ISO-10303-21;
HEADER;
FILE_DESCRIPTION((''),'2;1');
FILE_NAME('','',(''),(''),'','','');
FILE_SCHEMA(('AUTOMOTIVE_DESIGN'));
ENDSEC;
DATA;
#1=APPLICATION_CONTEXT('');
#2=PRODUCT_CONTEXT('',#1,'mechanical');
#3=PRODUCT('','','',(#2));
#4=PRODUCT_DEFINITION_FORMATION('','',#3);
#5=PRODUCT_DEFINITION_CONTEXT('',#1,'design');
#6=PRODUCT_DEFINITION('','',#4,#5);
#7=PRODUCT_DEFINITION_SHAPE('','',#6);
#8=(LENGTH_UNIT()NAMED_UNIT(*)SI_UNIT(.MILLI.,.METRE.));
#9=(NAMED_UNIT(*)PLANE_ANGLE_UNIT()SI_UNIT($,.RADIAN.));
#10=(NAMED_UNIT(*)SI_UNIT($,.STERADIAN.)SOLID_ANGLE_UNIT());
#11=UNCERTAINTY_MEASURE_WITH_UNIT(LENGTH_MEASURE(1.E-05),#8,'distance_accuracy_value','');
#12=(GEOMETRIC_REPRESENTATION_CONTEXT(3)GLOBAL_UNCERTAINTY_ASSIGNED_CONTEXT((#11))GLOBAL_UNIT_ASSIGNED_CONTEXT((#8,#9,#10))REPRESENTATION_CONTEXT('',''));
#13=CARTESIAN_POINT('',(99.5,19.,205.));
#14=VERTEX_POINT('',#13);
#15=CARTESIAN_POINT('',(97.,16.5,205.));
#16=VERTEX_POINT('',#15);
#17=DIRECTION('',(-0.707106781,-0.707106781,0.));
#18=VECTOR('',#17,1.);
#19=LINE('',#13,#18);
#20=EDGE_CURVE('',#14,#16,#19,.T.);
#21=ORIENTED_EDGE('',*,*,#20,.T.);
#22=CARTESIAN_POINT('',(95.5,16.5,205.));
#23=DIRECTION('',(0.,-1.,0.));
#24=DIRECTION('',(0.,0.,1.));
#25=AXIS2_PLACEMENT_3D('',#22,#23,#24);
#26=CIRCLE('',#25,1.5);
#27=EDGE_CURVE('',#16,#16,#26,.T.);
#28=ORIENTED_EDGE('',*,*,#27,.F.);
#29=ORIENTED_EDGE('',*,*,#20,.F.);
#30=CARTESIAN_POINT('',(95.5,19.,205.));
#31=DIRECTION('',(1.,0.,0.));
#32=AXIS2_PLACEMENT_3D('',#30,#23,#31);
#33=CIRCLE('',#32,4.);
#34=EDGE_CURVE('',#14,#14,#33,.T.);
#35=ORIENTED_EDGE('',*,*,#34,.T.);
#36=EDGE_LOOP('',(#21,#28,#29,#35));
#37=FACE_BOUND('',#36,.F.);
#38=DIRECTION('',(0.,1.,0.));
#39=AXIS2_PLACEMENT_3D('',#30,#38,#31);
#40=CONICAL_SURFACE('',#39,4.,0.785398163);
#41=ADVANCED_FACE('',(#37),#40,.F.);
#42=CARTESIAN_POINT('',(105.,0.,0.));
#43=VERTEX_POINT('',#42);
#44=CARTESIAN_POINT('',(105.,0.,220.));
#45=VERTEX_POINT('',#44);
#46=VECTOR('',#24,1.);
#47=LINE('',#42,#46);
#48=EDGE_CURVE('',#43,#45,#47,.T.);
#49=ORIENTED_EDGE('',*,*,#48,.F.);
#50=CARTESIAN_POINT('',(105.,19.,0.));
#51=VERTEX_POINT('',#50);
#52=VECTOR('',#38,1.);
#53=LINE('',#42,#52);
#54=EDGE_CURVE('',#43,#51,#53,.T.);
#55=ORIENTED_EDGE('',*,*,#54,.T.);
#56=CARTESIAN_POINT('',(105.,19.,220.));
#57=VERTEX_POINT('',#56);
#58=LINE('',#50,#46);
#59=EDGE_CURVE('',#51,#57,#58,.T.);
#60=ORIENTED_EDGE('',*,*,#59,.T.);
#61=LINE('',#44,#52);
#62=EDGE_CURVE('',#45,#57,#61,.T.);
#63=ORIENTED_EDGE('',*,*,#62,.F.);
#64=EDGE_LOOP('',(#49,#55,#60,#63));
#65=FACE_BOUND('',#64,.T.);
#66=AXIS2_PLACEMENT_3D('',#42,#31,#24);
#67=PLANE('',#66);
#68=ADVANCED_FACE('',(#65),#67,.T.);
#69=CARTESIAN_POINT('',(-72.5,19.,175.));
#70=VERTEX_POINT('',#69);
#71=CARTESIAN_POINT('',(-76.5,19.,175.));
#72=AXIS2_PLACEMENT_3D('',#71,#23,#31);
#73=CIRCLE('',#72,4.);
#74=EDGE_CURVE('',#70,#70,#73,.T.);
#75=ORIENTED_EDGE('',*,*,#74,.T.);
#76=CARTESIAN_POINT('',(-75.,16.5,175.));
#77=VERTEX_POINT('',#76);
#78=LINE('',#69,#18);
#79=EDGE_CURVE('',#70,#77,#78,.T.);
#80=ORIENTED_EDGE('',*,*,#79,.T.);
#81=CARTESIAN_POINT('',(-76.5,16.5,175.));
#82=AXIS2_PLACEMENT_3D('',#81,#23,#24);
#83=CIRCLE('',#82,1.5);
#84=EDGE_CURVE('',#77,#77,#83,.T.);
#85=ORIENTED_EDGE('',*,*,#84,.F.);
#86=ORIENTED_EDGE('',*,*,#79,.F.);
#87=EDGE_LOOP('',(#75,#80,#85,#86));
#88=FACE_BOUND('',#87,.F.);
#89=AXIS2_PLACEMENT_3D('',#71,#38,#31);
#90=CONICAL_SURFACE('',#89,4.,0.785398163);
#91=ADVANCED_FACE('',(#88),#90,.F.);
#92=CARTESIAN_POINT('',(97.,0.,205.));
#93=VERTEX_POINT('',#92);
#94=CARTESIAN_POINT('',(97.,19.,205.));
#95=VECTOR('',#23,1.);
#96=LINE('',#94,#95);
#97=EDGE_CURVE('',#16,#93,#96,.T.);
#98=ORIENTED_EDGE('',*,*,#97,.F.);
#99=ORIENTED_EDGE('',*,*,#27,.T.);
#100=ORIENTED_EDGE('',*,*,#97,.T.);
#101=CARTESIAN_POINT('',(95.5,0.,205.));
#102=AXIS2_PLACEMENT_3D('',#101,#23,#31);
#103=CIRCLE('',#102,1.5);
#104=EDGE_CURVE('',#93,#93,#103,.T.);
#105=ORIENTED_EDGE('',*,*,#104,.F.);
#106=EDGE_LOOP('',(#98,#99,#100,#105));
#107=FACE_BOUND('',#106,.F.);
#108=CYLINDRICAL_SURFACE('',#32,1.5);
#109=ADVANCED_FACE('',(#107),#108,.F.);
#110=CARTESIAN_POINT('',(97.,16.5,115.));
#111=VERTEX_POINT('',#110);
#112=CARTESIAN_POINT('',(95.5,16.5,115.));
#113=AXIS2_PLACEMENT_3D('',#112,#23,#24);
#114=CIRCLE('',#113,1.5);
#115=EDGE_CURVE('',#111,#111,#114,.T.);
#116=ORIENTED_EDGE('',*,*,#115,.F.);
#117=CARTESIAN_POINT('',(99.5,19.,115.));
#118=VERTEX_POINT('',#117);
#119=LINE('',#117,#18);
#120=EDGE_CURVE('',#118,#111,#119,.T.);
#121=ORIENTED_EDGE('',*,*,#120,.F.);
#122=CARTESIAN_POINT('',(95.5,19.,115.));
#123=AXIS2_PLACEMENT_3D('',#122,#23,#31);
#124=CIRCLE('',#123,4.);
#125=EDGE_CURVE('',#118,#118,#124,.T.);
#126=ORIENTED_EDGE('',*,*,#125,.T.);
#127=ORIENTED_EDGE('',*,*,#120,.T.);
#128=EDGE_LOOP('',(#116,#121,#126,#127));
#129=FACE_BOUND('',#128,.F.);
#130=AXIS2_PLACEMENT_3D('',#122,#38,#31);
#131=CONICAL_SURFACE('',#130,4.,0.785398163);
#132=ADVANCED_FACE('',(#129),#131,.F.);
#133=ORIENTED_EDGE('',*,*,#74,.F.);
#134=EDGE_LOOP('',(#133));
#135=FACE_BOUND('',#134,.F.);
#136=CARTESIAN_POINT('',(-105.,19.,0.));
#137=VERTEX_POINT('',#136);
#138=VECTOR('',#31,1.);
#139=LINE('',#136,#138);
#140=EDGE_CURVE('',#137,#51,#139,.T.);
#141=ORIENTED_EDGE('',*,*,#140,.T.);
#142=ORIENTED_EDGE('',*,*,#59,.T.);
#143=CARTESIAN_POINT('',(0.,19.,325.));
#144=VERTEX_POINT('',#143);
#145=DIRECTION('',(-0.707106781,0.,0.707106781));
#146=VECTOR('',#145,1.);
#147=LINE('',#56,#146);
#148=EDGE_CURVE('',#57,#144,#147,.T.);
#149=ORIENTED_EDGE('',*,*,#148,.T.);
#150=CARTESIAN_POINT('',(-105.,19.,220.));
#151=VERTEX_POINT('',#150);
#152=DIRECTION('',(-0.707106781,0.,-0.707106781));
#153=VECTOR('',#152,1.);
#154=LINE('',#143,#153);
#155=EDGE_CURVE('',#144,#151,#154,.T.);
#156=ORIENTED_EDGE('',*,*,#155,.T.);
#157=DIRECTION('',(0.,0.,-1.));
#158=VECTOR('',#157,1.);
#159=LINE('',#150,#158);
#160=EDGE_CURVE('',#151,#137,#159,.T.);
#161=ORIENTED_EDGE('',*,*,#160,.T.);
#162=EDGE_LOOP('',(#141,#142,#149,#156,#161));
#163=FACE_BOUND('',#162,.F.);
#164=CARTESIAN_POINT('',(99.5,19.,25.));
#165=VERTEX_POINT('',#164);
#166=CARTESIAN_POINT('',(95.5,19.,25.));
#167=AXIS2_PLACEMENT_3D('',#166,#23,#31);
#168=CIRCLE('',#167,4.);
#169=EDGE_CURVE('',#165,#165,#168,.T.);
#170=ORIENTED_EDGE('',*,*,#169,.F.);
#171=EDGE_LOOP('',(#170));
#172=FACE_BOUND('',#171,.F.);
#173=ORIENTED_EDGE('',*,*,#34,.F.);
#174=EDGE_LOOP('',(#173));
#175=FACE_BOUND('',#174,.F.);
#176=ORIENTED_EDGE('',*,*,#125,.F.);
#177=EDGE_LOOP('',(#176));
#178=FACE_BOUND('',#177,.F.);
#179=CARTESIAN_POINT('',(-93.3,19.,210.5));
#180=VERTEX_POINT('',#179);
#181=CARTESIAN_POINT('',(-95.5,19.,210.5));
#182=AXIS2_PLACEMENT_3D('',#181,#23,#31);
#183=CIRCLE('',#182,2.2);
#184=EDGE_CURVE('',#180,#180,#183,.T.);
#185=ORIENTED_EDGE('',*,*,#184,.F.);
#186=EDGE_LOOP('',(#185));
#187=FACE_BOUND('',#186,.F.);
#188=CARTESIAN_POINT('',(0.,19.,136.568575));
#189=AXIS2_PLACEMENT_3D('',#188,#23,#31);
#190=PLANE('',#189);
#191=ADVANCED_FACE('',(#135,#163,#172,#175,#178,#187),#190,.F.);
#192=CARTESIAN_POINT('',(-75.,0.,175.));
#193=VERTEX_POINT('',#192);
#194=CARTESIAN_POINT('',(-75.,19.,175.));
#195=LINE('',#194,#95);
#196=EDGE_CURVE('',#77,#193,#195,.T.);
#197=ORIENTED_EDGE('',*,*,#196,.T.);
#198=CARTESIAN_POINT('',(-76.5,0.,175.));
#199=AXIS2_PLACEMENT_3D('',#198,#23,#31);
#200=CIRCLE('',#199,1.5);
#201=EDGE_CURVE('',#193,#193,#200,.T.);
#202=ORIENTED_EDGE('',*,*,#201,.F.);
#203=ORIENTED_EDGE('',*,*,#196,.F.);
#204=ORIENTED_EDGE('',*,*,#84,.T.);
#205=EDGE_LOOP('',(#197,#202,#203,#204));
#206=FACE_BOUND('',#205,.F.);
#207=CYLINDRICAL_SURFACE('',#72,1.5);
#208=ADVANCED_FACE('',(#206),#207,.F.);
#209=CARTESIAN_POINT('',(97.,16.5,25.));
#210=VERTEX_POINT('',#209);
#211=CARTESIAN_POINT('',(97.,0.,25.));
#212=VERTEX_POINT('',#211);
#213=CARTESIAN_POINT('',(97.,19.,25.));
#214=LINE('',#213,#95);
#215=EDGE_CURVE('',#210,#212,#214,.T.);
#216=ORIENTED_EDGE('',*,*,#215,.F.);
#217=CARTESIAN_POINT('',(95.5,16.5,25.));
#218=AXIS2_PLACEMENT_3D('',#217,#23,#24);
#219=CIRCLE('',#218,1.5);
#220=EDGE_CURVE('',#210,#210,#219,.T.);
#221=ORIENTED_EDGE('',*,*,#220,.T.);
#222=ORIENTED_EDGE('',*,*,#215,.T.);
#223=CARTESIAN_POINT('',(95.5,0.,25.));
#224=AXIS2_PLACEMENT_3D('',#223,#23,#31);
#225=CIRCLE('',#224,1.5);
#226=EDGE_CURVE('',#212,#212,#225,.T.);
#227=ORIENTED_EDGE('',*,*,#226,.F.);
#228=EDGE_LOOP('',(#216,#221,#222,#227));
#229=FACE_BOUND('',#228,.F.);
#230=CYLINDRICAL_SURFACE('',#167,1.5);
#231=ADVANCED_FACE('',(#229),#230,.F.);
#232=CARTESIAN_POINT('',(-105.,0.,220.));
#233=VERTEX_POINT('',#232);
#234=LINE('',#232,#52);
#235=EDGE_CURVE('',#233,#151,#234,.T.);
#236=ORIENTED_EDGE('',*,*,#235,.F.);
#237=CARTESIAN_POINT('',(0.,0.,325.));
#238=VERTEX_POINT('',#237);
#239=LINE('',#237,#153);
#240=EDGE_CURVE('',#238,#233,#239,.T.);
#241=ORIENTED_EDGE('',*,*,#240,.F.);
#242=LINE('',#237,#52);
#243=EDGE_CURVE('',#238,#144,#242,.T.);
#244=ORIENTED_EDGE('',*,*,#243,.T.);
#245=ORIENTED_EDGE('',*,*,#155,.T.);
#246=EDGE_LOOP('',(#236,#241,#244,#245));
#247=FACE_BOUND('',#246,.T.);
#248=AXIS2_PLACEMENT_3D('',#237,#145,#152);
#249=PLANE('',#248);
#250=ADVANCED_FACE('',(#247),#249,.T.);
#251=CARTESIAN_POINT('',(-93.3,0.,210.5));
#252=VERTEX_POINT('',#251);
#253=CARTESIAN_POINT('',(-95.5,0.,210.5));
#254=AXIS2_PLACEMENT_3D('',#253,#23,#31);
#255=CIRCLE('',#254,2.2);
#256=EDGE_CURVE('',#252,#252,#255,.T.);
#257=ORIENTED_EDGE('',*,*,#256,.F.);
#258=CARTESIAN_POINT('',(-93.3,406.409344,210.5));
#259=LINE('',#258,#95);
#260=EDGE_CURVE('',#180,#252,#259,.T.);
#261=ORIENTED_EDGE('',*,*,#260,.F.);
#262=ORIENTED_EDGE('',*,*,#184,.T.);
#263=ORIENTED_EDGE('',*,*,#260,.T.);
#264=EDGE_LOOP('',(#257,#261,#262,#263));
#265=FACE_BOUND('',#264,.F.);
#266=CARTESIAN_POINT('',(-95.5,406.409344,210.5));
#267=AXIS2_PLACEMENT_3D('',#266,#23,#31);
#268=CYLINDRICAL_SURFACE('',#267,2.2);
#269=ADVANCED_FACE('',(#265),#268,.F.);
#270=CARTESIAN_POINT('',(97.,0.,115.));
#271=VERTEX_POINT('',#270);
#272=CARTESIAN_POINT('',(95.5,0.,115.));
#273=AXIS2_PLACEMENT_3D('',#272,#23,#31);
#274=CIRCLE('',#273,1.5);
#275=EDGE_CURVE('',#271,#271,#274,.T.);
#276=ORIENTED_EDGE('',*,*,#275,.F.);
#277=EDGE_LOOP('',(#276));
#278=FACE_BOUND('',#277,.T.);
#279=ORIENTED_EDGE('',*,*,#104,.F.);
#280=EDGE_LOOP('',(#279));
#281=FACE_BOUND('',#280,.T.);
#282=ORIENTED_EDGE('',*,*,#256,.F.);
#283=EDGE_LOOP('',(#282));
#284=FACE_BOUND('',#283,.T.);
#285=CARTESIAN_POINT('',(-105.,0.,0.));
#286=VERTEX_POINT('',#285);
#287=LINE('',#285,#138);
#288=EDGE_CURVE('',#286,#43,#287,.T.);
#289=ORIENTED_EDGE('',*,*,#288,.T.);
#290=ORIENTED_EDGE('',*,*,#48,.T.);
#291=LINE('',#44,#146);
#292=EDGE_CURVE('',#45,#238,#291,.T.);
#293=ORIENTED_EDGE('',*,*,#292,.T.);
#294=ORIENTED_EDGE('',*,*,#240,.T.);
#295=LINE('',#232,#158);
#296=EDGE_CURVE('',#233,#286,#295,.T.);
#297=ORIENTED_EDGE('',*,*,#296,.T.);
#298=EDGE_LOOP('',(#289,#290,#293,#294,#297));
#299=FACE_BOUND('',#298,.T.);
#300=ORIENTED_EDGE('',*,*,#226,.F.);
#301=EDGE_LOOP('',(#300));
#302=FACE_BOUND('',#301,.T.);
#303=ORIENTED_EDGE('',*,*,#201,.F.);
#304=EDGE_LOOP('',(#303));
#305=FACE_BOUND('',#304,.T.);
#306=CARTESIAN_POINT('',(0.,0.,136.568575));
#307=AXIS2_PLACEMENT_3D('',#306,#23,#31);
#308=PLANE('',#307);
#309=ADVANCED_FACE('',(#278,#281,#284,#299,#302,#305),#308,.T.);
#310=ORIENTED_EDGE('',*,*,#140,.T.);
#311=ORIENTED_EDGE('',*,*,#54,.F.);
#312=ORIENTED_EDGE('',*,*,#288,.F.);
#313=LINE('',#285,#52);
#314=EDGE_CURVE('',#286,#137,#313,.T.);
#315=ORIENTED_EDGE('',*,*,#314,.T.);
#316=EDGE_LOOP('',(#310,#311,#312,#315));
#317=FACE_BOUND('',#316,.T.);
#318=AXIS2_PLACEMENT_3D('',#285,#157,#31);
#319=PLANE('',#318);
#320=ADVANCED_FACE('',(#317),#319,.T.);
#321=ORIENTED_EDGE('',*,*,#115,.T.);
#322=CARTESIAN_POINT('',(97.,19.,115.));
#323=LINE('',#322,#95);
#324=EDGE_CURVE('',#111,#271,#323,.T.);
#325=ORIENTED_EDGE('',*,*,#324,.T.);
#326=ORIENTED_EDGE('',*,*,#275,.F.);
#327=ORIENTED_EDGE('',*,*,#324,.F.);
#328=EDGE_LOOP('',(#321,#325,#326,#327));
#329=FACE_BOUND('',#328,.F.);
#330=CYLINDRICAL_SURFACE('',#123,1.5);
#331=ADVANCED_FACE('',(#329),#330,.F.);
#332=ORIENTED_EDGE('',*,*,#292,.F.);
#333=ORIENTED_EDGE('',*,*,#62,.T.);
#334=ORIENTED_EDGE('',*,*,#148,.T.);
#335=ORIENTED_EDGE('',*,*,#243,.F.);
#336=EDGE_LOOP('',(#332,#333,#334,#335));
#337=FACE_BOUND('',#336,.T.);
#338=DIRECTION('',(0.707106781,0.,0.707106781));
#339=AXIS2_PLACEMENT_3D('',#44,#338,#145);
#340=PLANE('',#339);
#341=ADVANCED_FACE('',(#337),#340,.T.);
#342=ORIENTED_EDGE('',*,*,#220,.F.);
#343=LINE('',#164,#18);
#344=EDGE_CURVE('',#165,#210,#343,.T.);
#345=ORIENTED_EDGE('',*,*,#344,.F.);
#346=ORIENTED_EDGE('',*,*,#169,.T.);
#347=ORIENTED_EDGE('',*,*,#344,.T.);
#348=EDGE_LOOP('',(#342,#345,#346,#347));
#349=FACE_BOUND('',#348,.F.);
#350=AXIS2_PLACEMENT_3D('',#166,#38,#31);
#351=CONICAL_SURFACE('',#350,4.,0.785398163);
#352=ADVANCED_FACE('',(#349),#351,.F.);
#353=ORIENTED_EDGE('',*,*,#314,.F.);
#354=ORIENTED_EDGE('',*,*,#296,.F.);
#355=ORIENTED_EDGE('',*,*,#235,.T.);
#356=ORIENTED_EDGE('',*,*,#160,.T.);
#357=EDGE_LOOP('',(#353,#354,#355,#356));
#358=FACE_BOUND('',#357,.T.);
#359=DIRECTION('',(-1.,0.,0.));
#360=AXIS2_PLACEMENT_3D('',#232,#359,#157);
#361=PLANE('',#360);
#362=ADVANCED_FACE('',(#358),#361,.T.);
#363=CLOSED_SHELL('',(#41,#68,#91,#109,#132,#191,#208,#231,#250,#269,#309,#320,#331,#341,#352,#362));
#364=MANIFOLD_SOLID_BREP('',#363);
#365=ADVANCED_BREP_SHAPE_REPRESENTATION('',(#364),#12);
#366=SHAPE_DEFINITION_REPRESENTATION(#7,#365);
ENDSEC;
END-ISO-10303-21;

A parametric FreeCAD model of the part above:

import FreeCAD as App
import Part
import Sketcher
from FreeCAD import Vector
Q = App.Units.Quantity


def add_polygon(sketch, points):
    """Adds a closed chain of lines whose ends are joined by coincident constraints."""
    first, n = sketch.GeometryCount, len(points)
    for a, b in zip(points, points[1:] + points[:1]):
        sketch.addGeometry(Part.LineSegment(App.Vector(*a, 0), App.Vector(*b, 0)), False)
    for i in range(n):
        sketch.addConstraint(Sketcher.Constraint("Coincident", first + i, 2, first + (i + 1) % n, 1))

doc = App.newDocument("Part")
body = doc.addObject("PartDesign::Body", "Body")

# Sketch on XZ plane
sketch1 = doc.addObject("Sketcher::SketchObject", "Sketch")
body.addObject(sketch1)
sketch1.AttachmentSupport = (doc.XZ_Plane, [""])
sketch1.MapMode = "FlatFace"
add_polygon(sketch1, [(-105, 0), (105, 0), (105, 220), (0, 325), (-105, 220)])  # lines 0-4
sketch1.addConstraint([
    Sketcher.Constraint("Horizontal", 0),
    Sketcher.Constraint("Vertical", 1),
    Sketcher.Constraint("Vertical", 4),
    Sketcher.Constraint("Symmetric", 0, 2, 4, 2, -1, 1),
    Sketcher.Constraint("PointOnObject", 2, 2, -2),
    Sketcher.Constraint("Perpendicular", 2, 3),
    Sketcher.Constraint("Horizontal", 1, 2, 3, 2),
    Sketcher.Constraint("DistanceX", 0, 1, 0, 2, Q("210 mm")),
    Sketcher.Constraint("DistanceY", 1, 1, 1, 2, Q("220 mm")),
])
pad1 = doc.addObject("PartDesign::Pad", "Pad")
body.addObject(pad1)
pad1.Profile = sketch1
pad1.Length = 19
pad1.Reversed = True

# Sketch on XZ plane
sketch2 = doc.addObject("Sketcher::SketchObject", "Sketch001")
body.addObject(sketch2)
sketch2.AttachmentSupport = (doc.XZ_Plane, [""])
sketch2.MapMode = "FlatFace"
sketch2.AttachmentOffset = App.Placement(Vector(0, 0, -19), App.Rotation())
sketch2.addGeometry([
    Part.Circle(Vector(95.5, 25, 0), Vector(0, 0, 1), 1.5),
    Part.Circle(Vector(95.5, 115, 0), Vector(0, 0, 1), 1.5),
    Part.Circle(Vector(95.5, 205, 0), Vector(0, 0, 1), 1.5),
    Part.Circle(Vector(-76.5, 175, 0), Vector(0, 0, 1), 1.5),
], False)
sketch2.addConstraint([
    Sketcher.Constraint("Equal", 0, 1),
    Sketcher.Constraint("Equal", 1, 2),
    Sketcher.Constraint("Equal", 2, 3),
    Sketcher.Constraint("Vertical", 0, 3, 1, 3),
    Sketcher.Constraint("Vertical", 1, 3, 2, 3),
    Sketcher.Constraint("Diameter", 0, Q("3 mm")),
    Sketcher.Constraint("DistanceY", -1, 1, 0, 3, Q("25 mm")),
    Sketcher.Constraint("DistanceY", -1, 1, 1, 3, Q("115 mm")),
    Sketcher.Constraint("DistanceY", -1, 1, 2, 3, Q("205 mm")),
    Sketcher.Constraint("DistanceY", -1, 1, 3, 3, Q("175 mm")),
    Sketcher.Constraint("DistanceX", 3, 3, 2, 3, Q("172 mm")),
    Sketcher.Constraint("DistanceX", -1, 1, 0, 3, Q("95.5 mm")),
])
doc.recompute()
hole = doc.addObject("PartDesign::Hole", "Hole")
body.addObject(hole)
hole.Profile = sketch2
hole.ThreadType = "None"
hole.Diameter = 3
hole.DepthType = "ThroughAll"
hole.HoleCutType = "Countersink"
hole.HoleCutDiameter = 8
hole.HoleCutCountersinkAngle = 90
hole.Reversed = True

# Sketch on XZ plane
sketch3 = doc.addObject("Sketcher::SketchObject", "Sketch002")
body.addObject(sketch3)
sketch3.AttachmentSupport = (doc.XZ_Plane, [""])
sketch3.MapMode = "FlatFace"
sketch3.AttachmentOffset = App.Placement(Vector(0, 0, -19), App.Rotation())
sketch3.addGeometry(Part.Circle(Vector(-95.5, 210.5, 0), Vector(0, 0, 1), 2.2), False)
sketch3.addConstraint([
    Sketcher.Constraint("Diameter", 0, Q("4.4 mm")),
    Sketcher.Constraint("DistanceX", 0, 3, -1, 1, Q("95.5 mm")),
    Sketcher.Constraint("DistanceY", -1, 1, 0, 3, Q("210.5 mm")),
])
doc.recompute()
hole2 = doc.addObject("PartDesign::Hole", "Hole001")
body.addObject(hole2)
hole2.Profile = sketch3
hole2.ThreadType = "None"
hole2.Diameter = 4.4
hole2.DepthType = "ThroughAll"
hole2.Reversed = True

doc.recompute()
